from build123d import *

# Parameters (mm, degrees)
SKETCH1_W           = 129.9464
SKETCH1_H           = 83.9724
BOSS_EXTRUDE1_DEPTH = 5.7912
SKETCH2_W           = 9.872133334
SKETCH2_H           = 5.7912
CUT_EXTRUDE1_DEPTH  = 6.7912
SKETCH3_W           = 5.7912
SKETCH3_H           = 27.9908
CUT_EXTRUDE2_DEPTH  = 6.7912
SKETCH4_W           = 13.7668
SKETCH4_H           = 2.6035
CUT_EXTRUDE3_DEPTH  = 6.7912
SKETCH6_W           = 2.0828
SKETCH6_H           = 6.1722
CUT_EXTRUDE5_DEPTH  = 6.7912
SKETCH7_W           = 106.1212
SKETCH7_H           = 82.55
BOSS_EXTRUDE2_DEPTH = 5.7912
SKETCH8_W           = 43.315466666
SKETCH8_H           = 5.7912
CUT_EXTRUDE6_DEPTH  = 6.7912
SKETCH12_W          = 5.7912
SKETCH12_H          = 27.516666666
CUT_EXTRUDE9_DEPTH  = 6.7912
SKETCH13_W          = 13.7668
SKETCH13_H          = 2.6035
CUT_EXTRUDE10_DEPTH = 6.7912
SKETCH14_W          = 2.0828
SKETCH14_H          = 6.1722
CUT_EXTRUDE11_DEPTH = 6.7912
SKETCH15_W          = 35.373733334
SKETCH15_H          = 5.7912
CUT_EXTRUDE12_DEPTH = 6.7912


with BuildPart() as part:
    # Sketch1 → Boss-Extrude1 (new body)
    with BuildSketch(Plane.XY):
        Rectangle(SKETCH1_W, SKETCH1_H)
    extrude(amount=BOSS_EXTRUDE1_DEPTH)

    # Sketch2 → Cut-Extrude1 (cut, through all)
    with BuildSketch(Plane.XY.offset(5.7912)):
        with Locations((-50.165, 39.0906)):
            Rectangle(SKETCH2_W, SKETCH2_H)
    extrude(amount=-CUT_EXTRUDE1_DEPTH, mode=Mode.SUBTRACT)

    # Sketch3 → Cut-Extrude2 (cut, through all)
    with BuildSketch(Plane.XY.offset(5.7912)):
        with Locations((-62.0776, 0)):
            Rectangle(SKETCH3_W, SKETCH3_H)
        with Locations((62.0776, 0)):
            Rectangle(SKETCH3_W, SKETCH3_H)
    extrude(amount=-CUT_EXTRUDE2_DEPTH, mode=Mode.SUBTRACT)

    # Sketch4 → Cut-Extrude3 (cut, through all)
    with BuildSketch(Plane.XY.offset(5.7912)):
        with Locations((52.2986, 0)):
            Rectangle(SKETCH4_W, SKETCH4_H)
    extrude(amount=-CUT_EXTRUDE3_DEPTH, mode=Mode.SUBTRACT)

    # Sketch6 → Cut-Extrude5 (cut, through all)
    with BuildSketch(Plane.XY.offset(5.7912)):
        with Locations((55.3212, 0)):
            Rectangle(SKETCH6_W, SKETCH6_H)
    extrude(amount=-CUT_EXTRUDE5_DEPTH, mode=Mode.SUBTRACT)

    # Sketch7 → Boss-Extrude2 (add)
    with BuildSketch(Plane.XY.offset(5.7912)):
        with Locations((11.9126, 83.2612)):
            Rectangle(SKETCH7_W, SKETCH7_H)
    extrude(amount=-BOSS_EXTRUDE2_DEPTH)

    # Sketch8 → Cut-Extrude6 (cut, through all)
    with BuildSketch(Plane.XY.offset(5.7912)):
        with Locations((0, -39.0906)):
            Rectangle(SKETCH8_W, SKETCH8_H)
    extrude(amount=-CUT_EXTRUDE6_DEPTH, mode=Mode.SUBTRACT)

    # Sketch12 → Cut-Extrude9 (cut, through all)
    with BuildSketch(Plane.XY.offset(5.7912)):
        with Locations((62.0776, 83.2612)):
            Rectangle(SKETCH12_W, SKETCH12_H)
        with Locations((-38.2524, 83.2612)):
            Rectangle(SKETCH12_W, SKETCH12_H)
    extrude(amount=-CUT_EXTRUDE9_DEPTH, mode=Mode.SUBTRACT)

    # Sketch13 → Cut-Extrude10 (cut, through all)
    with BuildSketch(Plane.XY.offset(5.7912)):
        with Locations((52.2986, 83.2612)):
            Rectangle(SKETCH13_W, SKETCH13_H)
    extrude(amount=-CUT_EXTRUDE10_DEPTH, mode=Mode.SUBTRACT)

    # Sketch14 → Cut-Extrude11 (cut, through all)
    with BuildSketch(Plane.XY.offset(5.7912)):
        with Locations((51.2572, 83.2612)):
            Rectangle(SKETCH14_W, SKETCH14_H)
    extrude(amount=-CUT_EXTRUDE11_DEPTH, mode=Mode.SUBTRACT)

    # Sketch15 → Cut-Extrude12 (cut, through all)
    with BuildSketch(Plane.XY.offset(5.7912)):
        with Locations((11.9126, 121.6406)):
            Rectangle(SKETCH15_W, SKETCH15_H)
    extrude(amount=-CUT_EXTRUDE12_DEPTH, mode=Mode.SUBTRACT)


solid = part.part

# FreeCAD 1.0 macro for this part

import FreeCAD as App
import Part
import Sketcher
from FreeCAD import Vector
Q = App.Units.Quantity

doc = App.newDocument("Part")
body = doc.addObject("PartDesign::Body", "Body")

sketch1 = body.newObject("Sketcher::SketchObject", "Sketch")
sketch1.AttachmentSupport = (doc.getObject("XY_Plane"), [""])
sketch1.MapMode = "FlatFace"
sketch1.addGeometry([
    Part.LineSegment(Vector(-65, 42, 0), Vector(-65, -42, 0)),
    Part.LineSegment(Vector(-65, -42, 0), Vector(65, -42, 0)),
    Part.LineSegment(Vector(65, -42, 0), Vector(65, 42, 0)),
    Part.LineSegment(Vector(65, 42, 0), Vector(-65, 42, 0)),
], False)
sketch1.addConstraint([
    Sketcher.Constraint("Coincident", 0, 2, 1, 1),
    Sketcher.Constraint("Coincident", 1, 2, 2, 1),
    Sketcher.Constraint("Coincident", 2, 2, 3, 1),
    Sketcher.Constraint("Coincident", 3, 2, 0, 1),
    Sketcher.Constraint("Vertical", 0),
    Sketcher.Constraint("Horizontal", 1),
    Sketcher.Constraint("Vertical", 2),
    Sketcher.Constraint("Horizontal", 3),
    Sketcher.Constraint("Symmetric", 0, 2, 2, 2, -1, 1),
    Sketcher.Constraint("DistanceX", 1, 1, 1, 2, Q("5.116 in")),
    Sketcher.Constraint("DistanceY", 0, 2, 0, 1, Q("3.306 in")),
])
pad1 = body.newObject("PartDesign::Pad", "Pad")
pad1.Profile = sketch1
pad1.Length = Q("0.228 in")

sketch2 = body.newObject("Sketcher::SketchObject", "Sketch001")
sketch2.AttachmentSupport = (doc.getObject("XY_Plane"), [""])
sketch2.MapMode = "FlatFace"
sketch2.AttachmentOffset = App.Placement(Vector(0, 0, 0.228 * 25.4), App.Rotation())
sketch2.addGeometry([
    Part.LineSegment(Vector(-55, 42, 0), Vector(-55, 36, 0)),
    Part.LineSegment(Vector(-55, 36, 0), Vector(-45, 36, 0)),
    Part.LineSegment(Vector(-45, 36, 0), Vector(-45, 42, 0)),
    Part.LineSegment(Vector(-45, 42, 0), Vector(-55, 42, 0)),
], False)
sketch2.addConstraint([
    Sketcher.Constraint("Coincident", 0, 2, 1, 1),
    Sketcher.Constraint("Coincident", 1, 2, 2, 1),
    Sketcher.Constraint("Coincident", 2, 2, 3, 1),
    Sketcher.Constraint("Coincident", 3, 2, 0, 1),
    Sketcher.Constraint("Vertical", 0),
    Sketcher.Constraint("Horizontal", 1),
    Sketcher.Constraint("Vertical", 2),
    Sketcher.Constraint("Horizontal", 3),
    Sketcher.Constraint("DistanceY", 0, 2, 0, 1, Q("0.228 in")),
    Sketcher.Constraint("DistanceY", -1, 1, 0, 2, Q("1.425 in")),
    Sketcher.Constraint("DistanceX", 1, 1, 1, 2, Q("9.872133 mm")),
    Sketcher.Constraint("DistanceX", 0, 2, -1, 1, Q("55.101067 mm")),
])
pocket1 = body.newObject("PartDesign::Pocket", "Pocket")
pocket1.Profile = sketch2
pocket1.Type = "ThroughAll"

sketch3 = body.newObject("Sketcher::SketchObject", "Sketch002")
sketch3.AttachmentSupport = (doc.getObject("XY_Plane"), [""])
sketch3.MapMode = "FlatFace"
sketch3.AttachmentOffset = App.Placement(Vector(0, 0, 0.228 * 25.4), App.Rotation())
sketch3.addGeometry([
    Part.LineSegment(Vector(-65, 14, 0), Vector(-65, -14, 0)),
    Part.LineSegment(Vector(-65, -14, 0), Vector(-59, -14, 0)),
    Part.LineSegment(Vector(-59, -14, 0), Vector(-59, 14, 0)),
    Part.LineSegment(Vector(-59, 14, 0), Vector(-65, 14, 0)),
    Part.LineSegment(Vector(59, 14, 0), Vector(59, -14, 0)),
    Part.LineSegment(Vector(59, -14, 0), Vector(65, -14, 0)),
    Part.LineSegment(Vector(65, -14, 0), Vector(65, 14, 0)),
    Part.LineSegment(Vector(65, 14, 0), Vector(59, 14, 0)),
], False)
sketch3.addConstraint([
    Sketcher.Constraint("Coincident", 0, 2, 1, 1),
    Sketcher.Constraint("Coincident", 1, 2, 2, 1),
    Sketcher.Constraint("Coincident", 2, 2, 3, 1),
    Sketcher.Constraint("Coincident", 3, 2, 0, 1),
    Sketcher.Constraint("Coincident", 4, 2, 5, 1),
    Sketcher.Constraint("Coincident", 5, 2, 6, 1),
    Sketcher.Constraint("Coincident", 6, 2, 7, 1),
    Sketcher.Constraint("Coincident", 7, 2, 4, 1),
    Sketcher.Constraint("Vertical", 0),
    Sketcher.Constraint("Horizontal", 1),
    Sketcher.Constraint("Vertical", 2),
    Sketcher.Constraint("Horizontal", 3),
    Sketcher.Constraint("Vertical", 4),
    Sketcher.Constraint("Horizontal", 5),
    Sketcher.Constraint("Vertical", 6),
    Sketcher.Constraint("Horizontal", 7),
    Sketcher.Constraint("Symmetric", 2, 2, 4, 2, -1, 1),
    Sketcher.Constraint("Symmetric", 0, 2, 6, 2, -1, 1),
    Sketcher.Constraint("Horizontal", 1, 2, 4, 2),
    Sketcher.Constraint("DistanceX", 1, 1, 1, 2, Q("0.228 in")),
    Sketcher.Constraint("DistanceY", 0, 2, 0, 1, Q("1.102 in")),
    Sketcher.Constraint("DistanceX", 1, 2, -1, 1, Q("2.33 in")),
])
pocket2 = body.newObject("PartDesign::Pocket", "Pocket001")
pocket2.Profile = sketch3
pocket2.Type = "ThroughAll"

sketch4 = body.newObject("Sketcher::SketchObject", "Sketch003")
sketch4.AttachmentSupport = (doc.getObject("XY_Plane"), [""])
sketch4.MapMode = "FlatFace"
sketch4.AttachmentOffset = App.Placement(Vector(0, 0, 0.228 * 25.4), App.Rotation())
sketch4.addGeometry([
    Part.LineSegment(Vector(45.4, 1.3, 0), Vector(45.4, -1.3, 0)),
    Part.LineSegment(Vector(45.4, -1.3, 0), Vector(59.2, -1.3, 0)),
    Part.LineSegment(Vector(59.2, -1.3, 0), Vector(59.2, 1.3, 0)),
    Part.LineSegment(Vector(59.2, 1.3, 0), Vector(45.4, 1.3, 0)),
], False)
sketch4.addConstraint([
    Sketcher.Constraint("Coincident", 0, 2, 1, 1),
    Sketcher.Constraint("Coincident", 1, 2, 2, 1),
    Sketcher.Constraint("Coincident", 2, 2, 3, 1),
    Sketcher.Constraint("Coincident", 3, 2, 0, 1),
    Sketcher.Constraint("Vertical", 0),
    Sketcher.Constraint("Horizontal", 1),
    Sketcher.Constraint("Vertical", 2),
    Sketcher.Constraint("Horizontal", 3),
    Sketcher.Constraint("DistanceX", 1, 1, 1, 2, Q("0.542 in")),
    Sketcher.Constraint("DistanceX", -1, 1, 1, 2, Q("2.33 in")),
    Sketcher.Constraint("DistanceY", 0, 2, 0, 1, Q("0.1025 in")),
    Sketcher.Constraint("DistanceY", 0, 2, -1, 1, Q("1.30175 mm")),
])
pocket3 = body.newObject("PartDesign::Pocket", "Pocket002")
pocket3.Profile = sketch4
pocket3.Type = "ThroughAll"

sketch5 = body.newObject("Sketcher::SketchObject", "Sketch004")
sketch5.AttachmentSupport = (doc.getObject("XY_Plane"), [""])
sketch5.MapMode = "FlatFace"
sketch5.AttachmentOffset = App.Placement(Vector(0, 0, 0.228 * 25.4), App.Rotation())
sketch5.addGeometry([
    Part.LineSegment(Vector(54.3, 3.1, 0), Vector(54.3, -3.1, 0)),
    Part.LineSegment(Vector(54.3, -3.1, 0), Vector(56.4, -3.1, 0)),
    Part.LineSegment(Vector(56.4, -3.1, 0), Vector(56.4, 3.1, 0)),
    Part.LineSegment(Vector(56.4, 3.1, 0), Vector(54.3, 3.1, 0)),
], False)
sketch5.addConstraint([
    Sketcher.Constraint("Coincident", 0, 2, 1, 1),
    Sketcher.Constraint("Coincident", 1, 2, 2, 1),
    Sketcher.Constraint("Coincident", 2, 2, 3, 1),
    Sketcher.Constraint("Coincident", 3, 2, 0, 1),
    Sketcher.Constraint("Vertical", 0),
    Sketcher.Constraint("Horizontal", 1),
    Sketcher.Constraint("Vertical", 2),
    Sketcher.Constraint("Horizontal", 3),
    Sketcher.Constraint("DistanceX", 1, 1, 1, 2, Q("0.082 in")),
    Sketcher.Constraint("DistanceY", 0, 2, 0, 1, Q("0.243 in")),
    Sketcher.Constraint("DistanceX", -1, 1, 0, 2, Q("2.137 in")),
    Sketcher.Constraint("DistanceY", 0, 2, -1, 1, Q("0.1215 in")),
])
pocket4 = body.newObject("PartDesign::Pocket", "Pocket003")
pocket4.Profile = sketch5
pocket4.Type = "ThroughAll"

sketch6 = body.newObject("Sketcher::SketchObject", "Sketch005")
sketch6.AttachmentSupport = (doc.getObject("XY_Plane"), [""])
sketch6.MapMode = "FlatFace"
sketch6.AttachmentOffset = App.Placement(Vector(0, 0, 0.228 * 25.4), App.Rotation())
sketch6.addGeometry([
    Part.LineSegment(Vector(-41, 125, 0), Vector(-41, 42, 0)),
    Part.LineSegment(Vector(-41, 42, 0), Vector(65, 42, 0)),
    Part.LineSegment(Vector(65, 42, 0), Vector(65, 125, 0)),
    Part.LineSegment(Vector(65, 125, 0), Vector(-41, 125, 0)),
], False)
sketch6.addConstraint([
    Sketcher.Constraint("Coincident", 0, 2, 1, 1),
    Sketcher.Constraint("Coincident", 1, 2, 2, 1),
    Sketcher.Constraint("Coincident", 2, 2, 3, 1),
    Sketcher.Constraint("Coincident", 3, 2, 0, 1),
    Sketcher.Constraint("Vertical", 0),
    Sketcher.Constraint("Horizontal", 1),
    Sketcher.Constraint("Vertical", 2),
    Sketcher.Constraint("Horizontal", 3),
    Sketcher.Constraint("DistanceY", 0, 2, 0, 1, Q("3.25 in")),
    Sketcher.Constraint("DistanceX", 1, 1, 1, 2, Q("4.178 in")),
    Sketcher.Constraint("DistanceX", 0, 2, -1, 1, Q("1.62 in")),
    Sketcher.Constraint("DistanceY", -1, 1, 0, 2, Q("1.653 in")),
])
pad2 = body.newObject("PartDesign::Pad", "Pad001")
pad2.Profile = sketch6
pad2.Length = Q("0.228 in")
pad2.Reversed = True

sketch7 = body.newObject("Sketcher::SketchObject", "Sketch006")
sketch7.AttachmentSupport = (doc.getObject("XY_Plane"), [""])
sketch7.MapMode = "FlatFace"
sketch7.AttachmentOffset = App.Placement(Vector(0, 0, 0.228 * 25.4), App.Rotation())
sketch7.addGeometry([
    Part.LineSegment(Vector(-22, -36, 0), Vector(-22, -42, 0)),
    Part.LineSegment(Vector(-22, -42, 0), Vector(22, -42, 0)),
    Part.LineSegment(Vector(22, -42, 0), Vector(22, -36, 0)),
    Part.LineSegment(Vector(22, -36, 0), Vector(-22, -36, 0)),
], False)
sketch7.addConstraint([
    Sketcher.Constraint("Coincident", 0, 2, 1, 1),
    Sketcher.Constraint("Coincident", 1, 2, 2, 1),
    Sketcher.Constraint("Coincident", 2, 2, 3, 1),
    Sketcher.Constraint("Coincident", 3, 2, 0, 1),
    Sketcher.Constraint("Vertical", 0),
    Sketcher.Constraint("Horizontal", 1),
    Sketcher.Constraint("Vertical", 2),
    Sketcher.Constraint("Horizontal", 3),
    Sketcher.Constraint("DistanceY", 0, 2, 0, 1, Q("0.228 in")),
    Sketcher.Constraint("DistanceY", 0, 2, -1, 1, Q("1.653 in")),
    Sketcher.Constraint("DistanceX", 1, 1, 1, 2, Q("43.315467 mm")),
    Sketcher.Constraint("DistanceX", 0, 2, -1, 1, Q("21.657733 mm")),
])
pocket5 = body.newObject("PartDesign::Pocket", "Pocket004")
pocket5.Profile = sketch7
pocket5.Type = "ThroughAll"

sketch8 = body.newObject("Sketcher::SketchObject", "Sketch007")
sketch8.AttachmentSupport = (doc.getObject("XY_Plane"), [""])
sketch8.MapMode = "FlatFace"
sketch8.AttachmentOffset = App.Placement(Vector(0, 0, 0.228 * 25.4), App.Rotation())
sketch8.addGeometry([
    Part.LineSegment(Vector(59, 97, 0), Vector(59, 70, 0)),
    Part.LineSegment(Vector(59, 70, 0), Vector(65, 70, 0)),
    Part.LineSegment(Vector(65, 70, 0), Vector(65, 97, 0)),
    Part.LineSegment(Vector(65, 97, 0), Vector(59, 97, 0)),
    Part.LineSegment(Vector(-41, 97, 0), Vector(-41, 70, 0)),
    Part.LineSegment(Vector(-41, 70, 0), Vector(-35, 70, 0)),
    Part.LineSegment(Vector(-35, 70, 0), Vector(-35, 97, 0)),
    Part.LineSegment(Vector(-35, 97, 0), Vector(-41, 97, 0)),
], False)
sketch8.addConstraint([
    Sketcher.Constraint("Coincident", 0, 2, 1, 1),
    Sketcher.Constraint("Coincident", 1, 2, 2, 1),
    Sketcher.Constraint("Coincident", 2, 2, 3, 1),
    Sketcher.Constraint("Coincident", 3, 2, 0, 1),
    Sketcher.Constraint("Coincident", 4, 2, 5, 1),
    Sketcher.Constraint("Coincident", 5, 2, 6, 1),
    Sketcher.Constraint("Coincident", 6, 2, 7, 1),
    Sketcher.Constraint("Coincident", 7, 2, 4, 1),
    Sketcher.Constraint("Vertical", 0),
    Sketcher.Constraint("Horizontal", 1),
    Sketcher.Constraint("Vertical", 2),
    Sketcher.Constraint("Horizontal", 3),
    Sketcher.Constraint("Vertical", 4),
    Sketcher.Constraint("Horizontal", 5),
    Sketcher.Constraint("Vertical", 6),
    Sketcher.Constraint("Horizontal", 7),
    Sketcher.Constraint("Horizontal", 1, 2, 4, 2),
    Sketcher.Constraint("Horizontal", 3, 2, 6, 2),
    Sketcher.Constraint("Equal", 3, 5),
    Sketcher.Constraint("DistanceX", 1, 1, 1, 2, Q("0.228 in")),
    Sketcher.Constraint("DistanceX", -1, 1, 0, 2, Q("2.33 in")),
    Sketcher.Constraint("DistanceX", 4, 2, -1, 1, Q("1.62 in")),
    Sketcher.Constraint("DistanceY", 0, 2, 0, 1, Q("27.516667 mm")),
    Sketcher.Constraint("DistanceY", -1, 1, 0, 2, Q("69.502867 mm")),
])
pocket6 = body.newObject("PartDesign::Pocket", "Pocket005")
pocket6.Profile = sketch8
pocket6.Type = "ThroughAll"

sketch9 = body.newObject("Sketcher::SketchObject", "Sketch008")
sketch9.AttachmentSupport = (doc.getObject("XY_Plane"), [""])
sketch9.MapMode = "FlatFace"
sketch9.AttachmentOffset = App.Placement(Vector(0, 0, 0.228 * 25.4), App.Rotation())
sketch9.addGeometry([
    Part.LineSegment(Vector(45.4, 84.6, 0), Vector(45.4, 82, 0)),
    Part.LineSegment(Vector(45.4, 82, 0), Vector(59.2, 82, 0)),
    Part.LineSegment(Vector(59.2, 82, 0), Vector(59.2, 84.6, 0)),
    Part.LineSegment(Vector(59.2, 84.6, 0), Vector(45.4, 84.6, 0)),
], False)
sketch9.addConstraint([
    Sketcher.Constraint("Coincident", 0, 2, 1, 1),
    Sketcher.Constraint("Coincident", 1, 2, 2, 1),
    Sketcher.Constraint("Coincident", 2, 2, 3, 1),
    Sketcher.Constraint("Coincident", 3, 2, 0, 1),
    Sketcher.Constraint("Vertical", 0),
    Sketcher.Constraint("Horizontal", 1),
    Sketcher.Constraint("Vertical", 2),
    Sketcher.Constraint("Horizontal", 3),
    Sketcher.Constraint("DistanceX", 1, 1, 1, 2, Q("0.542 in")),
    Sketcher.Constraint("DistanceX", -1, 1, 1, 2, Q("2.33 in")),
    Sketcher.Constraint("DistanceY", 0, 2, 0, 1, Q("0.1025 in")),
    Sketcher.Constraint("DistanceY", -1, 1, 0, 2, Q("81.95945 mm")),
])
pocket7 = body.newObject("PartDesign::Pocket", "Pocket006")
pocket7.Profile = sketch9
pocket7.Type = "ThroughAll"

sketch10 = body.newObject("Sketcher::SketchObject", "Sketch009")
sketch10.AttachmentSupport = (doc.getObject("XY_Plane"), [""])
sketch10.MapMode = "FlatFace"
sketch10.AttachmentOffset = App.Placement(Vector(0, 0, 0.228 * 25.4), App.Rotation())
sketch10.addGeometry([
    Part.LineSegment(Vector(50.2, 86.3, 0), Vector(50.2, 80.2, 0)),
    Part.LineSegment(Vector(50.2, 80.2, 0), Vector(52.3, 80.2, 0)),
    Part.LineSegment(Vector(52.3, 80.2, 0), Vector(52.3, 86.3, 0)),
    Part.LineSegment(Vector(52.3, 86.3, 0), Vector(50.2, 86.3, 0)),
], False)
sketch10.addConstraint([
    Sketcher.Constraint("Coincident", 0, 2, 1, 1),
    Sketcher.Constraint("Coincident", 1, 2, 2, 1),
    Sketcher.Constraint("Coincident", 2, 2, 3, 1),
    Sketcher.Constraint("Coincident", 3, 2, 0, 1),
    Sketcher.Constraint("Vertical", 0),
    Sketcher.Constraint("Horizontal", 1),
    Sketcher.Constraint("Vertical", 2),
    Sketcher.Constraint("Horizontal", 3),
    Sketcher.Constraint("DistanceX", 1, 1, 1, 2, Q("0.082 in")),
    Sketcher.Constraint("DistanceY", 0, 2, 0, 1, Q("0.243 in")),
    Sketcher.Constraint("DistanceX", -1, 1, 0, 2, Q("1.977 in")),
    Sketcher.Constraint("DistanceY", -1, 1, 0, 2, Q("3.1565 in")),
])
pocket8 = body.newObject("PartDesign::Pocket", "Pocket007")
pocket8.Profile = sketch10
pocket8.Type = "ThroughAll"

sketch11 = body.newObject("Sketcher::SketchObject", "Sketch010")
sketch11.AttachmentSupport = (doc.getObject("XY_Plane"), [""])
sketch11.MapMode = "FlatFace"
sketch11.AttachmentOffset = App.Placement(Vector(0, 0, 0.228 * 25.4), App.Rotation())
sketch11.addGeometry([
    Part.LineSegment(Vector(-6, 125, 0), Vector(-6, 119, 0)),
    Part.LineSegment(Vector(-6, 119, 0), Vector(30, 119, 0)),
    Part.LineSegment(Vector(30, 119, 0), Vector(30, 125, 0)),
    Part.LineSegment(Vector(30, 125, 0), Vector(-6, 125, 0)),
], False)
sketch11.addConstraint([
    Sketcher.Constraint("Coincident", 0, 2, 1, 1),
    Sketcher.Constraint("Coincident", 1, 2, 2, 1),
    Sketcher.Constraint("Coincident", 2, 2, 3, 1),
    Sketcher.Constraint("Coincident", 3, 2, 0, 1),
    Sketcher.Constraint("Vertical", 0),
    Sketcher.Constraint("Horizontal", 1),
    Sketcher.Constraint("Vertical", 2),
    Sketcher.Constraint("Horizontal", 3),
    Sketcher.Constraint("DistanceY", 0, 2, 0, 1, Q("0.228 in")),
    Sketcher.Constraint("DistanceY", -1, 1, 0, 2, Q("4.675 in")),
    Sketcher.Constraint("DistanceX", 1, 1, 1, 2, Q("35.373733 mm")),
    Sketcher.Constraint("DistanceX", 0, 2, -1, 1, Q("5.774267 mm")),
])
pocket9 = body.newObject("PartDesign::Pocket", "Pocket008")
pocket9.Profile = sketch11
pocket9.Type = "ThroughAll"

doc.recompute()
